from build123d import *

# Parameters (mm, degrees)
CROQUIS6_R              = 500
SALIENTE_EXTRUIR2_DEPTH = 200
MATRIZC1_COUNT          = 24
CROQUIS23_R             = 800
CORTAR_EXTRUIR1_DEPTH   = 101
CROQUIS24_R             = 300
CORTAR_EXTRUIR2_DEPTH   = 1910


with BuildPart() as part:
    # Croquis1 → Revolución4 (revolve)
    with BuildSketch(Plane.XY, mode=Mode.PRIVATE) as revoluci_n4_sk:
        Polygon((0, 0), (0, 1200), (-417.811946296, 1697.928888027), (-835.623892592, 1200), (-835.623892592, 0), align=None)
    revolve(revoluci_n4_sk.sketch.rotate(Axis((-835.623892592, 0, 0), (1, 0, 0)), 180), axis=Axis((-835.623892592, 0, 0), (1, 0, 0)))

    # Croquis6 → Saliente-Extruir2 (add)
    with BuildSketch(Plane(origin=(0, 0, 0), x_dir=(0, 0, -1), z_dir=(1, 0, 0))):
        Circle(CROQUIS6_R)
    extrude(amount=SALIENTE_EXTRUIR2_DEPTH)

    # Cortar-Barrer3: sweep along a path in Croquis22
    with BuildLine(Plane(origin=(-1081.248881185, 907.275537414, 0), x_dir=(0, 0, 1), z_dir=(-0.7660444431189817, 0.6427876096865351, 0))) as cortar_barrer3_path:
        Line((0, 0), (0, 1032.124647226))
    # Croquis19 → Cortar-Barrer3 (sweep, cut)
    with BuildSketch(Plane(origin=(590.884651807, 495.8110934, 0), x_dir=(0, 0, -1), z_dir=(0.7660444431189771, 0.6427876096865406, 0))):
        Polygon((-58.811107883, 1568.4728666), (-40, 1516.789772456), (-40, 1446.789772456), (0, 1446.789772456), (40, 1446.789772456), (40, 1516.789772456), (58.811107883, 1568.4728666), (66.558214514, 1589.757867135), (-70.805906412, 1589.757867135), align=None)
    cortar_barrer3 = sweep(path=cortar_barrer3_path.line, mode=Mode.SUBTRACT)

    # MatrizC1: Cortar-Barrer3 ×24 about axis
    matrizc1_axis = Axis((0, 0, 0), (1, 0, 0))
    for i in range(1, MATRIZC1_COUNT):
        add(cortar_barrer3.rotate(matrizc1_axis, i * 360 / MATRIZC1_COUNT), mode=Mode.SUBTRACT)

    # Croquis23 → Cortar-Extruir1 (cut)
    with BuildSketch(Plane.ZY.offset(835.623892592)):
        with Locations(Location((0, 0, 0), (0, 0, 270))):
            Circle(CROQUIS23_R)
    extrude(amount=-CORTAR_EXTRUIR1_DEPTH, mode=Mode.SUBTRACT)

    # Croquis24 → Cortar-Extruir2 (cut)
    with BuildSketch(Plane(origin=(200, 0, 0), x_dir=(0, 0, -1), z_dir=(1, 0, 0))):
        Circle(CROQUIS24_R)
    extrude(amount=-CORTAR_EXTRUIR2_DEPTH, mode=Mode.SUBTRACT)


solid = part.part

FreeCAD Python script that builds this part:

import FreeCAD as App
import Part
import Sketcher
from FreeCAD import Vector
Q = App.Units.Quantity


def add_polygon(sketch, points):
    """Adds a closed chain of lines whose ends are joined by coincident constraints."""
    first, n = sketch.GeometryCount, len(points)
    for a, b in zip(points, points[1:] + points[:1]):
        sketch.addGeometry(Part.LineSegment(App.Vector(*a, 0), App.Vector(*b, 0)), False)
    for i in range(n):
        sketch.addConstraint(Sketcher.Constraint("Coincident", first + i, 2, first + (i + 1) % n, 1))

doc = App.newDocument("Part")
params = doc.addObject("Spreadsheet::Sheet", "Params")
for row, (alias, value) in enumerate([
    ("sketch1_height", "1200 mm"),
    ("sketch1_length", "650 mm"),
    ("revolution_angle", "360 deg"),
    ("sketch2_diameter", "1000 mm"),
    ("pad1_length", "200 mm"),
    ("sketch3_width", "80 mm"),
    ("sketch3_height", "70 mm"),
    ("sketch3_length", "55 mm"),
    ("sketch5_diameter", "1600 mm"),
    ("pocket1_length", "101 mm"),
    ("sketch6_diameter", "600 mm"),
    ("pocket2_length", "1910 mm"),
], start=1):
    params.set(f"A{row}", alias)
    params.set(f"B{row}", "=" + value)
    params.setAlias(f"B{row}", alias)

body = doc.addObject("PartDesign::Body", "Body")

sketch1 = body.newObject("Sketcher::SketchObject", "Sketch")
sketch1.AttachmentSupport = (doc.getObject("XY_Plane"), [""])
sketch1.MapMode = "FlatFace"
add_polygon(sketch1, [(0, 0), (0, 1200), (-418, 1698), (-836, 1200), (-836, 0)])
sketch1.addConstraint([
    Sketcher.Constraint("Vertical", 0),
    Sketcher.Constraint("Vertical", 3),
    Sketcher.Constraint("Horizontal", 4),
    Sketcher.Constraint("Coincident", 4, 2, -1, 1),
    Sketcher.Constraint("Horizontal", 0, 2, 2, 2),
    Sketcher.Constraint("Equal", 1, 2),
    Sketcher.Constraint("DistanceY", 0, 1, 0, 2, 1200.0),
    Sketcher.Constraint("Angle", 1, Q("130 deg")),
    Sketcher.Constraint("Distance", 1, 650.0),
])
sketch1.setExpression("Constraints[11]", "Params.sketch1_height")
sketch1.setExpression("Constraints[13]", "Params.sketch1_length")
revolution = body.newObject("PartDesign::Revolution", "Revolution")
revolution.Profile = sketch1
revolution.ReferenceAxis = (sketch1, ["H_Axis"])
revolution.setExpression("Angle", "Params.revolution_angle")

sketch2 = body.newObject("Sketcher::SketchObject", "Sketch001")
sketch2.AttachmentSupport = (doc.getObject("YZ_Plane"), [""])
sketch2.MapMode = "FlatFace"
sketch2.addGeometry(Part.Circle(Vector(0, 0, 0), Vector(0, 0, 1), 500), False)
sketch2.addConstraint([
    Sketcher.Constraint("Coincident", 0, 3, -1, 1),
    Sketcher.Constraint("Diameter", 0, 1000.0),
])
sketch2.setExpression("Constraints[1]", "Params.sketch2_diameter")
pad1 = body.newObject("PartDesign::Pad", "Pad")
pad1.Profile = sketch2
pad1.setExpression("Length", "Params.pad1_length")

sketch3 = body.newObject("Sketcher::SketchObject", "Sketch002")
sketch3.Placement = App.Placement(Vector(590.884652, 495.811093, 0), App.Rotation(Vector(0, 0, -1), Vector(-0.64278761, 0.766044443, 0), Vector(0.766044443, 0.64278761, 0), "ZXY"))
add_polygon(sketch3, [(-59, 1568), (-40, 1517), (-40, 1447), (40, 1447), (40, 1517), (67, 1590), (-71, 1590)])
sketch3.addConstraint([
    Sketcher.Constraint("Vertical", 1),
    Sketcher.Constraint("Horizontal", 2),
    Sketcher.Constraint("Vertical", 3),
    Sketcher.Constraint("Horizontal", 5),
    Sketcher.Constraint("Symmetric", 0, 2, 3, 2, -2),
    Sketcher.Constraint("DistanceX", 2, 1, 2, 2, 80.0),
    Sketcher.Constraint("DistanceY", 1, 2, 1, 1, 70.0),
    Sketcher.Constraint("Angle", 0, Q("-70 deg")),
    Sketcher.Constraint("Angle", 4, Q("70 deg")),
    Sketcher.Constraint("Distance", 0, 55.0),
    Sketcher.Constraint("DistanceY", 6, 2, 5, 2, 21.285001),
    Sketcher.Constraint("DistanceX", 5, 2, 5, 1, 137.364121),
    Sketcher.Constraint("DistanceY", -1, 1, 0, 2, 1516.789773),
])
sketch3.setExpression("Constraints[12]", "Params.sketch3_width")
sketch3.setExpression("Constraints[13]", "Params.sketch3_height")
sketch3.setExpression("Constraints[16]", "Params.sketch3_length")

sketch4 = body.newObject("Sketcher::SketchObject", "Sketch003")
sketch4.Placement = App.Placement(Vector(-1081.248881, 907.275537, 0), App.Rotation(Vector(0.64278761, 0.766044443, 0), Vector(0, 0, 1), Vector(0.766044443, -0.64278761, 0), "ZXY"))
sketch4.addGeometry(Part.LineSegment(Vector(0, 0, 0), Vector(1032, 0, 0)), False)
sketch4.addConstraint([
    Sketcher.Constraint("Horizontal", 0),
    Sketcher.Constraint("Coincident", 0, 1, -1, 1),
    Sketcher.Constraint("DistanceX", 0, 1, 0, 2, 1032.124647),
])
doc.recompute()

subtractivepipe = body.newObject("PartDesign::SubtractivePipe", "SubtractivePipe")
subtractivepipe.Profile = sketch3
subtractivepipe.Spine = (sketch4, ["Edge1"])
doc.recompute()

polarpattern = body.newObject("PartDesign::PolarPattern", "PolarPattern")
polarpattern.Originals = [subtractivepipe]
polarpattern.Axis = (doc.getObject("X_Axis"), [""])
polarpattern.Angle = 360
polarpattern.Occurrences = 24
body.Tip = polarpattern

sketch5 = body.newObject("Sketcher::SketchObject", "Sketch004")
sketch5.AttachmentSupport = (doc.getObject("YZ_Plane"), [""])
sketch5.MapMode = "FlatFace"
sketch5.AttachmentOffset = App.Placement(Vector(0, 0, -835.623893), App.Rotation())
sketch5.addGeometry(Part.Circle(Vector(0, 0, 0), Vector(0, 0, 1), 800), False)
sketch5.addConstraint([
    Sketcher.Constraint("Coincident", 0, 3, -1, 1),
    Sketcher.Constraint("Diameter", 0, 1600.0),
])
sketch5.setExpression("Constraints[1]", "Params.sketch5_diameter")
pocket1 = body.newObject("PartDesign::Pocket", "Pocket")
pocket1.Profile = sketch5
pocket1.setExpression("Length", "Params.pocket1_length")
pocket1.Reversed = True

sketch6 = body.newObject("Sketcher::SketchObject", "Sketch005")
sketch6.AttachmentSupport = (doc.getObject("YZ_Plane"), [""])
sketch6.MapMode = "FlatFace"
sketch6.AttachmentOffset = App.Placement(Vector(0, 0, 200), App.Rotation())
sketch6.addGeometry(Part.Circle(Vector(0, 0, 0), Vector(0, 0, 1), 300), False)
sketch6.addConstraint([
    Sketcher.Constraint("Coincident", 0, 3, -1, 1),
    Sketcher.Constraint("Diameter", 0, 600.0),
])
sketch6.setExpression("Constraints[1]", "Params.sketch6_diameter")
pocket2 = body.newObject("PartDesign::Pocket", "Pocket001")
pocket2.Profile = sketch6
pocket2.setExpression("Length", "Params.pocket2_length")

doc.recompute()
